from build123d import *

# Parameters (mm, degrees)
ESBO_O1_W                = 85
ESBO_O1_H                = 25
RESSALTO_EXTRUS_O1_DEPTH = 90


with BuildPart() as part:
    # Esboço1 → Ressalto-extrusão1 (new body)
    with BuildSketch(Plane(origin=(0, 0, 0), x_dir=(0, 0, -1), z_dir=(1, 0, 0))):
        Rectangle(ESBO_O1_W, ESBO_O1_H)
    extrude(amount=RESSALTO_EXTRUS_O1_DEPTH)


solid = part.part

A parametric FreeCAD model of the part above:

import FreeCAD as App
import Part
import Sketcher

V = App.Vector
Q = App.Units.Quantity


def add_polygon(sketch, points):
    """Adds a closed chain of lines whose ends are joined by coincident constraints."""
    first, n = sketch.GeometryCount, len(points)
    for a, b in zip(points, points[1:] + points[:1]):
        sketch.addGeometry(Part.LineSegment(App.Vector(*a, 0), App.Vector(*b, 0)), False)
    for i in range(n):
        sketch.addConstraint(Sketcher.Constraint("Coincident", first + i, 2, first + (i + 1) % n, 1))

doc = App.newDocument("Part")
body = doc.addObject("PartDesign::Body", "Body")

# Sketch on YZ plane
sketch1 = body.newObject("Sketcher::SketchObject", "Sketch")
sketch1.AttachmentSupport = (doc.getObject("YZ_Plane"), [""])
sketch1.MapMode = "FlatFace"
add_polygon(sketch1, [(12, 42), (-12, 42), (-12, -42), (12, -42)])  # lines 0-3
sketch1.addConstraint([
    Sketcher.Constraint("Horizontal", 0),
    Sketcher.Constraint("Vertical", 1),
    Sketcher.Constraint("Horizontal", 2),
    Sketcher.Constraint("Vertical", 3),
    Sketcher.Constraint("Symmetric", 0, 2, 2, 2, -1, 1),
    Sketcher.Constraint("DistanceX", 0, 2, 0, 1, Q("25 mm")),
    Sketcher.Constraint("DistanceY", 1, 2, 1, 1, Q("85 mm")),
])
pad1 = body.newObject("PartDesign::Pad", "Pad")
pad1.Profile = sketch1
pad1.Length = 90

doc.recompute()
